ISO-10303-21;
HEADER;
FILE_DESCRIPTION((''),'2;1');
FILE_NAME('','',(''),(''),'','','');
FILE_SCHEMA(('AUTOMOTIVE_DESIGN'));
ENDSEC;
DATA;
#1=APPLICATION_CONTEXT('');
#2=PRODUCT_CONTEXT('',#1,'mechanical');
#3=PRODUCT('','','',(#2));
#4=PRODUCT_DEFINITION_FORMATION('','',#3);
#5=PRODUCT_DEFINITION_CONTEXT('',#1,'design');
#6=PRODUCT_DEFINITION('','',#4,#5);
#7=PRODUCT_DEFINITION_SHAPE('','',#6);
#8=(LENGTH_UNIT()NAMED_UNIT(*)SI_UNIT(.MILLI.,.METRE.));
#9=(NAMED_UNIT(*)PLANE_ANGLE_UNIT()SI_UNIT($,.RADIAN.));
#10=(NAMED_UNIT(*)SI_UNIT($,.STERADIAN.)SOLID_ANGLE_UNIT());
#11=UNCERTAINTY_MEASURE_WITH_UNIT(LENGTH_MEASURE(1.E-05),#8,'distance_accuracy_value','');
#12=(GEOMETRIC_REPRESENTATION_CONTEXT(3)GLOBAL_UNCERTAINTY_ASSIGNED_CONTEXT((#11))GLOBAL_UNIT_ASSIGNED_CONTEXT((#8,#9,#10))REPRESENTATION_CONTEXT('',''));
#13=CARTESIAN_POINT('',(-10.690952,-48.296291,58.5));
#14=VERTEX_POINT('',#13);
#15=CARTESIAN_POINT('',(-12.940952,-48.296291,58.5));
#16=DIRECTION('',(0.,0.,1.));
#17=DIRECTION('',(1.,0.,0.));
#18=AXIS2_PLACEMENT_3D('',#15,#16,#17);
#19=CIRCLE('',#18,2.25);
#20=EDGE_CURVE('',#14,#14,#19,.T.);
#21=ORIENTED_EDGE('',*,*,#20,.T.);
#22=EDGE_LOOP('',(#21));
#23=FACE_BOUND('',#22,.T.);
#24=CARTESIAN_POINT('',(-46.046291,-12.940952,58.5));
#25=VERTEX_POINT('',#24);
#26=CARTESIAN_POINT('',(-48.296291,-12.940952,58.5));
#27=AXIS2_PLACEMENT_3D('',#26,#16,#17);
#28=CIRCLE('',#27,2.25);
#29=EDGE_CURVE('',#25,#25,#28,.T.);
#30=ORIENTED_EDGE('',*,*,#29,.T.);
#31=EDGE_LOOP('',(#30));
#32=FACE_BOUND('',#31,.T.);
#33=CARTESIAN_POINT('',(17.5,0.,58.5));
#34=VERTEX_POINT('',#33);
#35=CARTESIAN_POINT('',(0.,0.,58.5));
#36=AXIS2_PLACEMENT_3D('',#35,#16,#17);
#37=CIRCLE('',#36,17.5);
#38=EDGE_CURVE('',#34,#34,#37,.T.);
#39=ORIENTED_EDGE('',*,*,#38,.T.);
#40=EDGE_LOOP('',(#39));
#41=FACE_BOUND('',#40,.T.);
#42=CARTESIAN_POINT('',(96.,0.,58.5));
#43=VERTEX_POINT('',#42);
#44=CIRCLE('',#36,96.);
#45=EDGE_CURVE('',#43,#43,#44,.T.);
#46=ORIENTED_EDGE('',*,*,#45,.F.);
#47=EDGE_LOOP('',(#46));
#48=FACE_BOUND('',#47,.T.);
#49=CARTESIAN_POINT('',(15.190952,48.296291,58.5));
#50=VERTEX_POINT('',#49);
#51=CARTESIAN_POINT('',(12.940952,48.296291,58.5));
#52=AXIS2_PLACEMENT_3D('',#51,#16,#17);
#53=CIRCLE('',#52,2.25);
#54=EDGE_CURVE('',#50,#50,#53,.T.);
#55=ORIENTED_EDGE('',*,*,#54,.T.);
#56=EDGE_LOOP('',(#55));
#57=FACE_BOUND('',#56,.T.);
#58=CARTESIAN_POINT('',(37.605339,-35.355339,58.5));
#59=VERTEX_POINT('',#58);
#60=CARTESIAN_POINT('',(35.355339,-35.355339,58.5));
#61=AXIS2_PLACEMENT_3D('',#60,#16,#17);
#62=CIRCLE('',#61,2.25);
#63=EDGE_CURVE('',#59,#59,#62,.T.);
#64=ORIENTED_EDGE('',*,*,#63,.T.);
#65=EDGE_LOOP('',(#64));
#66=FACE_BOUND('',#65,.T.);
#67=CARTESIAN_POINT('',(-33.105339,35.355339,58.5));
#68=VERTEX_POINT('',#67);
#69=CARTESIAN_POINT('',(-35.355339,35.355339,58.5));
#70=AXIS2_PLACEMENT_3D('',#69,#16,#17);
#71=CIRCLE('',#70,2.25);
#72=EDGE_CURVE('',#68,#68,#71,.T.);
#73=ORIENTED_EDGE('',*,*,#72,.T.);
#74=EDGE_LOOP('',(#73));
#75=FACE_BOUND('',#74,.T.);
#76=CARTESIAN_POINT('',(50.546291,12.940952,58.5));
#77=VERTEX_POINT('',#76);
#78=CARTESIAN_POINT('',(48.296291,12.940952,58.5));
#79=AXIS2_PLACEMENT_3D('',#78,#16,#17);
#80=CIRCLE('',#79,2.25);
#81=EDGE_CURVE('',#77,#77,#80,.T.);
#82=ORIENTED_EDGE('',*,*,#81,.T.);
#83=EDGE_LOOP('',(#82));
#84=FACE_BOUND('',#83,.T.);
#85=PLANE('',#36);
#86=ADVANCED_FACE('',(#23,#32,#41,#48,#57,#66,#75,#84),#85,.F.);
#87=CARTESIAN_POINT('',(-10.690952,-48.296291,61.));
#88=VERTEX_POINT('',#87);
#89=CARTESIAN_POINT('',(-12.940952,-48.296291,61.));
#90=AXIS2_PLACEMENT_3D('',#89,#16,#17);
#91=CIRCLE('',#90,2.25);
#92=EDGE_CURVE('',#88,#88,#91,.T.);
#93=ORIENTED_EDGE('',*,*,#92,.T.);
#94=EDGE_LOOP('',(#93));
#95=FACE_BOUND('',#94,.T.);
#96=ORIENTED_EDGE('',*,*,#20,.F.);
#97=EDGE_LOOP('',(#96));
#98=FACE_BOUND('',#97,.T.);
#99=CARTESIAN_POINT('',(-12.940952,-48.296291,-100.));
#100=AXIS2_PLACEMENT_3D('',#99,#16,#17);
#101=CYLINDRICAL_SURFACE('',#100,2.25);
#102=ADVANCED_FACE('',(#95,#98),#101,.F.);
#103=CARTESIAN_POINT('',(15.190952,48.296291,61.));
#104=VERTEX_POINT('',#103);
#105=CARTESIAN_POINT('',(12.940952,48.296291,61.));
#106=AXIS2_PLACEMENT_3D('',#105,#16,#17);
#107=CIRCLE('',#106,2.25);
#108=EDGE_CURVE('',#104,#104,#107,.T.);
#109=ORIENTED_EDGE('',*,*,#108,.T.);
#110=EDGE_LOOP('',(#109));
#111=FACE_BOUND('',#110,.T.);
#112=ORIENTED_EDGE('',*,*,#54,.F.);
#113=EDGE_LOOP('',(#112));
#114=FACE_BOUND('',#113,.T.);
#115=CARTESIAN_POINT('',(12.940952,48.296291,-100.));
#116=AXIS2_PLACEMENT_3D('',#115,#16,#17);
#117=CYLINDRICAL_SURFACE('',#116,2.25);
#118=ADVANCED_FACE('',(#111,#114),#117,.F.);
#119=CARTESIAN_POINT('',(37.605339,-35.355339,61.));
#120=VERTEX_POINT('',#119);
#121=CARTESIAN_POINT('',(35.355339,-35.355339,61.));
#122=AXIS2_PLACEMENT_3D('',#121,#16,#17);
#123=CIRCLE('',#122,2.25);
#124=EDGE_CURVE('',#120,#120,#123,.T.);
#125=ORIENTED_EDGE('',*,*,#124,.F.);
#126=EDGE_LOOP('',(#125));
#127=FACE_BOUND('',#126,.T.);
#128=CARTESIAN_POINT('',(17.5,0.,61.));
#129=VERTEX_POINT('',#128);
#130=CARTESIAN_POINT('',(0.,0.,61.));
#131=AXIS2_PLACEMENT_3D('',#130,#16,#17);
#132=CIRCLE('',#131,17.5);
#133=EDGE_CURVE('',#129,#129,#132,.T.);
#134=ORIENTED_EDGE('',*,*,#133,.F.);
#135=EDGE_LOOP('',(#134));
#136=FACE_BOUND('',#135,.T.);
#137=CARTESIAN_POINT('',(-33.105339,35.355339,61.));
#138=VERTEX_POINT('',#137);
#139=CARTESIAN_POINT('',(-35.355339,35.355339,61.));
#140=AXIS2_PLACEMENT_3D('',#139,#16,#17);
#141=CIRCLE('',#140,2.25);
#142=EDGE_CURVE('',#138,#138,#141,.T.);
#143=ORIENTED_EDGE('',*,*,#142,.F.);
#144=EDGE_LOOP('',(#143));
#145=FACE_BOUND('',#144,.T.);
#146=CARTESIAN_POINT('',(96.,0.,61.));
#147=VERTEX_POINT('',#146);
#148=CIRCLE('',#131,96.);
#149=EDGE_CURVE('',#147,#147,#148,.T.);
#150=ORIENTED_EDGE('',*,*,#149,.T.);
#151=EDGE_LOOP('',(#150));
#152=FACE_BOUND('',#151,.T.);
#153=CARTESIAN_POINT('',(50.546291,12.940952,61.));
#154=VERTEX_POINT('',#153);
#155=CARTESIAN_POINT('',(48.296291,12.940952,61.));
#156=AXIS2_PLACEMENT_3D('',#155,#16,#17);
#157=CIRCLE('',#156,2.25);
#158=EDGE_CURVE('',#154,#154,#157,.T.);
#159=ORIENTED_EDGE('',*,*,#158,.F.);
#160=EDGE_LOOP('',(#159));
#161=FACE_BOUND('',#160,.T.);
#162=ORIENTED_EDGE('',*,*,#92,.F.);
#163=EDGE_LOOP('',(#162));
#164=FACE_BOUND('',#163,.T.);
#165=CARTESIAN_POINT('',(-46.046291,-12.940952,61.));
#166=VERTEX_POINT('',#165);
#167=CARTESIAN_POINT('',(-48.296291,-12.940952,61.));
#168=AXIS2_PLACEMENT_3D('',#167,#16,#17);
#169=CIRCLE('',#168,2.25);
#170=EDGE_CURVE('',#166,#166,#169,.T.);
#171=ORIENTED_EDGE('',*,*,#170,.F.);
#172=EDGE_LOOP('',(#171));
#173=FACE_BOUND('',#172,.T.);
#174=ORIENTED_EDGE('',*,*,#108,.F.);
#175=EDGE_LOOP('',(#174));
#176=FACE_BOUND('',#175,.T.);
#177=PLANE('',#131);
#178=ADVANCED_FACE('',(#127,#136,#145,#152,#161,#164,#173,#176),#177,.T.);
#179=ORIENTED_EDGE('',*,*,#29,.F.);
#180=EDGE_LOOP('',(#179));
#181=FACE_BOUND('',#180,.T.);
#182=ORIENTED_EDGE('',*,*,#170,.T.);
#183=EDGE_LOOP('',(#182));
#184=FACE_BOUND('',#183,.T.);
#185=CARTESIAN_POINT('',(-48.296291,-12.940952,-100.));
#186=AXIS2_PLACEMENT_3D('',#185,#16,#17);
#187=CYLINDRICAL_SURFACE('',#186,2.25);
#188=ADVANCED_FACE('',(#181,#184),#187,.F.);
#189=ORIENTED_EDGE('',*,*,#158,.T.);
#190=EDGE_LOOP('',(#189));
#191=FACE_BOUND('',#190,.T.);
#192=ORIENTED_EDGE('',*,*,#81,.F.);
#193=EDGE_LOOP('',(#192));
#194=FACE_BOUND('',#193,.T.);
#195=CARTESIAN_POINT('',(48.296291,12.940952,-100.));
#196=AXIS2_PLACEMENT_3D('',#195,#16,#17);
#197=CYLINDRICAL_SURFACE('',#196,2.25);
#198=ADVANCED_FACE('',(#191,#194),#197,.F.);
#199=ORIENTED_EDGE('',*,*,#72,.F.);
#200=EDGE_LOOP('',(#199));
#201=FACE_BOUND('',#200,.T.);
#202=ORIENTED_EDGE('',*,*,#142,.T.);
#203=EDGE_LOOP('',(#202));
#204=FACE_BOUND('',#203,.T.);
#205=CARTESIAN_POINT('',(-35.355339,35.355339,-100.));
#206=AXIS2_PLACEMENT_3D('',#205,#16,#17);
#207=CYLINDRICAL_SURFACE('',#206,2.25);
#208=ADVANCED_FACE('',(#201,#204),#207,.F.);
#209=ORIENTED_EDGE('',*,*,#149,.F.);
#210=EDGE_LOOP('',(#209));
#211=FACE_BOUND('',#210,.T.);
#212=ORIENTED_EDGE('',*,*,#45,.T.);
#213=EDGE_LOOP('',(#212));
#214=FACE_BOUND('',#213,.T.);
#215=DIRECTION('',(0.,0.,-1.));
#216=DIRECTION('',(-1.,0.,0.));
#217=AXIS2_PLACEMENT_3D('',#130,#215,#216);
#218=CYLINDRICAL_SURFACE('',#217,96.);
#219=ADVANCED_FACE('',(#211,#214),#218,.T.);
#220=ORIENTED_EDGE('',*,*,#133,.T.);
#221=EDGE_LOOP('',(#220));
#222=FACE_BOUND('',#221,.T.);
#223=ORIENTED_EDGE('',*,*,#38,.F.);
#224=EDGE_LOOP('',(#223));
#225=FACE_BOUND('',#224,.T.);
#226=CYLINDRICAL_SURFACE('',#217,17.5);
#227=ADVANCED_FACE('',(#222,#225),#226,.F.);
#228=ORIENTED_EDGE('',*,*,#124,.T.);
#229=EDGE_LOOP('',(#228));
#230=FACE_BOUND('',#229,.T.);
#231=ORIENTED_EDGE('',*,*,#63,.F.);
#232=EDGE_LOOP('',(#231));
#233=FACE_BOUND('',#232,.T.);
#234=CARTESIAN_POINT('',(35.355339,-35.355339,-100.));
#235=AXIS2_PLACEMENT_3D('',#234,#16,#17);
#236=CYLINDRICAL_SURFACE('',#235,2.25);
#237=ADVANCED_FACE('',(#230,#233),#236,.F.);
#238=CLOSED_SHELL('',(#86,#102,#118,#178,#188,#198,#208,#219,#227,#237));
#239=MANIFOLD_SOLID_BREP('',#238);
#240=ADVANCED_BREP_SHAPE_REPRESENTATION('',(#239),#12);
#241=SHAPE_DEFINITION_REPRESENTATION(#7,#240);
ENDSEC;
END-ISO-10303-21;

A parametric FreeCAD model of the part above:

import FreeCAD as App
import Part
import Sketcher
from FreeCAD import Vector
Q = App.Units.Quantity

doc = App.newDocument("Part")
body = doc.addObject("PartDesign::Body", "Body")

# Sketch on XY plane
sketch1 = body.newObject("Sketcher::SketchObject", "Sketch")
sketch1.AttachmentSupport = (doc.getObject("XY_Plane"), [""])
sketch1.MapMode = "FlatFace"
sketch1.AttachmentOffset = App.Placement(Vector(0, 0, 58.5), App.Rotation())
sketch1.addGeometry([
    Part.Circle(Vector(0, 0, 0), Vector(0, 0, 1), 96),
    Part.Circle(Vector(0, 0, 0), Vector(0, 0, 1), 18),
], False)
sketch1.addConstraint([
    Sketcher.Constraint("Coincident", 0, 3, -1, 1),
    Sketcher.Constraint("Coincident", 1, 3, -1, 1),
    Sketcher.Constraint("Diameter", 0, Q("192 mm")),
    Sketcher.Constraint("Diameter", 1, Q("35 mm")),
])
pad1 = body.newObject("PartDesign::Pad", "Pad")
pad1.Profile = sketch1
pad1.Length = 2.5

# Sketch on XY plane
sketch2 = body.newObject("Sketcher::SketchObject", "Sketch001")
sketch2.AttachmentSupport = (doc.getObject("XY_Plane"), [""])
sketch2.MapMode = "FlatFace"
sketch2.addGeometry([
    Part.Circle(Vector(48.3, 12.9, 0), Vector(0, 0, 1), 2.2),  # 0
    Part.Circle(Vector(12.9, 48.3, 0), Vector(0, 0, 1), 2.2),  # 1
    Part.Circle(Vector(-35.4, 35.4, 0), Vector(0, 0, 1), 2.2),  # 2
    Part.Circle(Vector(-48.3, -12.9, 0), Vector(0, 0, 1), 2.2),  # 3
    Part.Circle(Vector(-12.9, -48.3, 0), Vector(0, 0, 1), 2.2),  # 4
    Part.Circle(Vector(35.4, -35.4, 0), Vector(0, 0, 1), 2.2),  # 5
], False)
sketch2.addConstraint([
    Sketcher.Constraint("Equal", 0, 1),
    Sketcher.Constraint("Equal", 1, 2),
    Sketcher.Constraint("Equal", 2, 3),
    Sketcher.Constraint("Equal", 3, 4),
    Sketcher.Constraint("Equal", 4, 5),
    Sketcher.Constraint("Symmetric", 0, 3, 3, 3, -1, 1),
    Sketcher.Constraint("Symmetric", 1, 3, 4, 3, -1, 1),
    Sketcher.Constraint("Symmetric", 2, 3, 5, 3, -1, 1),
    Sketcher.Constraint("Diameter", 0, Q("4.5 mm")),
    Sketcher.Constraint("DistanceX", -1, 1, 0, 3, Q("48.296291 mm")),
    Sketcher.Constraint("DistanceY", -1, 1, 1, 3, Q("48.296291 mm")),
    Sketcher.Constraint("DistanceX", 2, 3, -1, 1, Q("35.355339 mm")),
    Sketcher.Constraint("DistanceY", -1, 1, 2, 3, Q("35.355339 mm")),
    Sketcher.Constraint("DistanceX", 1, 3, 0, 3, Q("35.355339 mm")),
    Sketcher.Constraint("DistanceY", 0, 3, 1, 3, Q("35.355339 mm")),
])
pocket1 = body.newObject("PartDesign::Pocket", "Pocket")
pocket1.Profile = sketch2
pocket1.Length = 200
pocket1.Midplane = True

doc.recompute()
